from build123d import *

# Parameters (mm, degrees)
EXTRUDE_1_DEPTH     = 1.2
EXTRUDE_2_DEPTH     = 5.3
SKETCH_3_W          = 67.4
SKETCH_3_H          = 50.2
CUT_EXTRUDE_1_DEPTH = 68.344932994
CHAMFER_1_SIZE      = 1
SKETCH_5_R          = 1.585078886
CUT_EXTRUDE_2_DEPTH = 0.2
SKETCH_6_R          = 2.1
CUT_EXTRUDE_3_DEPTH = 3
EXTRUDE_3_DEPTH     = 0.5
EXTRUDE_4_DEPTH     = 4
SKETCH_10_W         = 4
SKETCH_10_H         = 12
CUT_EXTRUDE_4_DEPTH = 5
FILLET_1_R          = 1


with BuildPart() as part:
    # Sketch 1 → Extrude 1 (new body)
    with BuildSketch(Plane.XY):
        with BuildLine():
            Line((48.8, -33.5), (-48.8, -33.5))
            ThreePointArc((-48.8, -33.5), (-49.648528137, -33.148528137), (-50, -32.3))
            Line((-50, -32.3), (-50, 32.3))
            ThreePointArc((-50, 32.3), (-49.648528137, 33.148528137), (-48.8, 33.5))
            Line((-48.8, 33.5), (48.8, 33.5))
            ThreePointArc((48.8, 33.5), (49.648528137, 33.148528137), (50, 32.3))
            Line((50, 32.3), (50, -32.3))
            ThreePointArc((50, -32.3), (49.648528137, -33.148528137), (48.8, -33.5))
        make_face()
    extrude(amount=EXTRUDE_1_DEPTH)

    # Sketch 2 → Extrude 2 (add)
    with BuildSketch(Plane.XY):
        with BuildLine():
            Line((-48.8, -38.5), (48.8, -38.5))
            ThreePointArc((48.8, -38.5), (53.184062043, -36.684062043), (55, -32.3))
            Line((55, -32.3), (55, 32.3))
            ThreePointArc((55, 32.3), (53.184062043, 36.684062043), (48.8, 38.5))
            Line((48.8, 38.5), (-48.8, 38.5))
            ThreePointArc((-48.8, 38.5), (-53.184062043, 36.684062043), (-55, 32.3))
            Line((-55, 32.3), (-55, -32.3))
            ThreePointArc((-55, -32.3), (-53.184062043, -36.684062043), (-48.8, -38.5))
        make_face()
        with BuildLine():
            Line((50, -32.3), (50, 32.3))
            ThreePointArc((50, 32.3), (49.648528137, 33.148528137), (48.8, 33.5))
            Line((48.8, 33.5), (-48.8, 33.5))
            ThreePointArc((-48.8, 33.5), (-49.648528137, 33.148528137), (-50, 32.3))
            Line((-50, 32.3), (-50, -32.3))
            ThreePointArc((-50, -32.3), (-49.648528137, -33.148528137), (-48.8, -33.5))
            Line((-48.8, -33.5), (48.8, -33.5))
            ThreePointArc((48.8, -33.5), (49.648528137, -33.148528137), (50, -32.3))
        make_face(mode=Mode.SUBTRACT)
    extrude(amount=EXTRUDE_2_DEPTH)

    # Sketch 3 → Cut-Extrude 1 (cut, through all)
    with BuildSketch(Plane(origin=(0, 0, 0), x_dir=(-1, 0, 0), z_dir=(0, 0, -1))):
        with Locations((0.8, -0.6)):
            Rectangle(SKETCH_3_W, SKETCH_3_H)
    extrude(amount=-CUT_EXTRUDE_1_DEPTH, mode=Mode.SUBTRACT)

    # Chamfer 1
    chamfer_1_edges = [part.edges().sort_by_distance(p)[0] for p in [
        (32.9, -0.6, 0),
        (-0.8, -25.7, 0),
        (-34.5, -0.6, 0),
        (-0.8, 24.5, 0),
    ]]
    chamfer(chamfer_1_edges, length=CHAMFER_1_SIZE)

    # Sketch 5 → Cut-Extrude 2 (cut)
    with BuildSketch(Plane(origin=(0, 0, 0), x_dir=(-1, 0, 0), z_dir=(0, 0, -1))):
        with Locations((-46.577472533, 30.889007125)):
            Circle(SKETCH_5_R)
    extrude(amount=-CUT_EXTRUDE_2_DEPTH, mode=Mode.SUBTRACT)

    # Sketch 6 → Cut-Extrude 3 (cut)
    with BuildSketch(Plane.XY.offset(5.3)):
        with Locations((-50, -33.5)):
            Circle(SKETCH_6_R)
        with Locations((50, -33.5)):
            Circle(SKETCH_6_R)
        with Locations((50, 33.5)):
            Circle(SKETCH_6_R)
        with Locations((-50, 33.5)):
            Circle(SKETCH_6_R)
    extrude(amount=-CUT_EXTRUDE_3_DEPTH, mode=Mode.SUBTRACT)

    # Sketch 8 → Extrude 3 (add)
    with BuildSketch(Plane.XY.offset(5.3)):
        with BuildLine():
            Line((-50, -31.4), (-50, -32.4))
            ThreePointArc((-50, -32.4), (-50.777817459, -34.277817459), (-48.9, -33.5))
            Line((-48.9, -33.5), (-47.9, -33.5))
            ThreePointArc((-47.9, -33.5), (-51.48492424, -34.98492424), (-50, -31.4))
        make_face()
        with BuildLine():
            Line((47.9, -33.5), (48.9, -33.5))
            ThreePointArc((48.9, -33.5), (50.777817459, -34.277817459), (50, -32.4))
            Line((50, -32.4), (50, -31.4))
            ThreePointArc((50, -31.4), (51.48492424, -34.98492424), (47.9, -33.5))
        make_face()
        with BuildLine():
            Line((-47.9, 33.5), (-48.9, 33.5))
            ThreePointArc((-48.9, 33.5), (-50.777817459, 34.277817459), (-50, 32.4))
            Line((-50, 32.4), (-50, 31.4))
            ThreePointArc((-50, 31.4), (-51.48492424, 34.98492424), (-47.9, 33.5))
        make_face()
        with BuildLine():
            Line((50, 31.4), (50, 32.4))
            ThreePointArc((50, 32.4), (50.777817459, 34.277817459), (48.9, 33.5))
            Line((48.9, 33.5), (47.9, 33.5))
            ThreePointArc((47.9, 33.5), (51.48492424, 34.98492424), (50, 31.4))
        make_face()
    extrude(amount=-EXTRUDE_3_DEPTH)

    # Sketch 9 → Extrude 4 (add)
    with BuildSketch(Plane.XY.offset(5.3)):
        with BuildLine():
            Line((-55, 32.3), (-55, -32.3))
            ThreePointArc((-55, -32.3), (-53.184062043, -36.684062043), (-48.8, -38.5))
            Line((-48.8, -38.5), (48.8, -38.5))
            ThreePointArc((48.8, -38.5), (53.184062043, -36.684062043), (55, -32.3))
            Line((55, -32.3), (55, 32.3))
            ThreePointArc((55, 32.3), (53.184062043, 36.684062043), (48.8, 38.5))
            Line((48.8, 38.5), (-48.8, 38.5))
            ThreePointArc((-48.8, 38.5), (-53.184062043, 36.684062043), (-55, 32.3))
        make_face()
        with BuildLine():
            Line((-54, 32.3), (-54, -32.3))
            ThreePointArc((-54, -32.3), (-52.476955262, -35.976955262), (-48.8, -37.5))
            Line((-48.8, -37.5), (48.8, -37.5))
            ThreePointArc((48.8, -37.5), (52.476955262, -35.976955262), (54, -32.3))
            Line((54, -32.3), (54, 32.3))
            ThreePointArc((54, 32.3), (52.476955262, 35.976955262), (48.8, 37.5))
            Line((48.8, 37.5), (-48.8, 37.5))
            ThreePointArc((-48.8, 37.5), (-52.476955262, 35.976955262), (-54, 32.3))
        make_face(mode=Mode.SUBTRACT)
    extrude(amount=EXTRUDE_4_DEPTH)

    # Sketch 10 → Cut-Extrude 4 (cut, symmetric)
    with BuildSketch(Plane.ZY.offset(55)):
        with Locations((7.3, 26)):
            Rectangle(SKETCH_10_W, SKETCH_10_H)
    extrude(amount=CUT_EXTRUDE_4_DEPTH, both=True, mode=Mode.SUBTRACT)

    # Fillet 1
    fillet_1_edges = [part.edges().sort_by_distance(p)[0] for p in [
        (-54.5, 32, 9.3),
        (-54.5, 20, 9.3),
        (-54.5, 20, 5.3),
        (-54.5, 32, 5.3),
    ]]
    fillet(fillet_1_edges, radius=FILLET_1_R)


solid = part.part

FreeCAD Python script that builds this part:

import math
import FreeCAD as App
import Part
import Sketcher
from FreeCAD import Vector


def edges_at(feature, points):
    """Names of the edges that pass closest to the given points."""
    edges = feature.Shape.Edges
    near = lambda p: min(range(len(edges)), key=lambda i: edges[i].distToShape(Part.Vertex(*p))[0])
    return sorted({f"Edge{near(p) + 1}" for p in points})

doc = App.newDocument("Part")
body = doc.addObject("PartDesign::Body", "Body")

sketch1 = body.newObject("Sketcher::SketchObject", "Sketch")
sketch1.AttachmentSupport = (doc.getObject("XY_Plane"), [""])
sketch1.MapMode = "FlatFace"
sketch1.addGeometry([
    Part.LineSegment(Vector(-48.8, -33.5, 0), Vector(48.8, -33.5, 0)),
    Part.ArcOfCircle(Part.Circle(Vector(48.8, -32.3, 0), Vector(0, 0, 1), 1.2), math.radians(-90), math.radians(0)),
    Part.LineSegment(Vector(50, -32.3, 0), Vector(50, 32.3, 0)),
    Part.ArcOfCircle(Part.Circle(Vector(48.8, 32.3, 0), Vector(0, 0, 1), 1.2), math.radians(0), math.radians(90)),
    Part.LineSegment(Vector(48.8, 33.5, 0), Vector(-48.8, 33.5, 0)),
    Part.ArcOfCircle(Part.Circle(Vector(-48.8, 32.3, 0), Vector(0, 0, 1), 1.2), math.radians(90), math.radians(180)),
    Part.LineSegment(Vector(-50, 32.3, 0), Vector(-50, -32.3, 0)),
    Part.ArcOfCircle(Part.Circle(Vector(-48.8, -32.3, 0), Vector(0, 0, 1), 1.2), math.radians(-180), math.radians(-90)),
], False)
sketch1.addConstraint([
    Sketcher.Constraint("Tangent", 0, 2, 1, 1),
    Sketcher.Constraint("Tangent", 1, 2, 2, 1),
    Sketcher.Constraint("Tangent", 2, 2, 3, 1),
    Sketcher.Constraint("Tangent", 3, 2, 4, 1),
    Sketcher.Constraint("Tangent", 4, 2, 5, 1),
    Sketcher.Constraint("Tangent", 5, 2, 6, 1),
    Sketcher.Constraint("Tangent", 6, 2, 7, 1),
    Sketcher.Constraint("Tangent", 7, 2, 0, 1),
    Sketcher.Constraint("Horizontal", 0),
    Sketcher.Constraint("Vertical", 2),
    Sketcher.Constraint("Horizontal", 4),
    Sketcher.Constraint("Vertical", 6),
    Sketcher.Constraint("Equal", 1, 3),
    Sketcher.Constraint("Equal", 3, 5),
    Sketcher.Constraint("Equal", 5, 7),
    Sketcher.Constraint("Symmetric", 1, 3, 5, 3, -1, 1),
    Sketcher.Constraint("Radius", 1, 1.2),
    Sketcher.Constraint("DistanceX", 0, 1, 0, 2, 97.6),
    Sketcher.Constraint("DistanceY", 2, 1, 2, 2, 64.6),
])
pad1 = body.newObject("PartDesign::Pad", "Pad")
pad1.Profile = sketch1
pad1.Length = 1.2

sketch2 = body.newObject("Sketcher::SketchObject", "Sketch001")
sketch2.AttachmentSupport = (doc.getObject("XY_Plane"), [""])
sketch2.MapMode = "FlatFace"
sketch2.addGeometry([
    Part.LineSegment(Vector(-48.8, -38.5, 0), Vector(48.8, -38.5, 0)),
    Part.ArcOfCircle(Part.Circle(Vector(48.8, -32.3, 0), Vector(0, 0, 1), 6.2), math.radians(-90), math.radians(0)),
    Part.LineSegment(Vector(55, -32.3, 0), Vector(55, 32.3, 0)),
    Part.ArcOfCircle(Part.Circle(Vector(48.8, 32.3, 0), Vector(0, 0, 1), 6.2), math.radians(0), math.radians(90)),
    Part.LineSegment(Vector(48.8, 38.5, 0), Vector(-48.8, 38.5, 0)),
    Part.ArcOfCircle(Part.Circle(Vector(-48.8, 32.3, 0), Vector(0, 0, 1), 6.2), math.radians(90), math.radians(180)),
    Part.LineSegment(Vector(-55, 32.3, 0), Vector(-55, -32.3, 0)),
    Part.ArcOfCircle(Part.Circle(Vector(-48.8, -32.3, 0), Vector(0, 0, 1), 6.2), math.radians(-180), math.radians(-90)),
    Part.LineSegment(Vector(50, 32.3, 0), Vector(50, -32.3, 0)),
    Part.ArcOfCircle(Part.Circle(Vector(48.8, -32.3, 0), Vector(0, 0, 1), 1.2), math.radians(-90), math.radians(0)),
    Part.LineSegment(Vector(48.8, -33.5, 0), Vector(-48.8, -33.5, 0)),
    Part.ArcOfCircle(Part.Circle(Vector(-48.8, -32.3, 0), Vector(0, 0, 1), 1.2), math.radians(-180), math.radians(-90)),
    Part.LineSegment(Vector(-50, -32.3, 0), Vector(-50, 32.3, 0)),
    Part.ArcOfCircle(Part.Circle(Vector(-48.8, 32.3, 0), Vector(0, 0, 1), 1.2), math.radians(90), math.radians(180)),
    Part.LineSegment(Vector(-48.8, 33.5, 0), Vector(48.8, 33.5, 0)),
    Part.ArcOfCircle(Part.Circle(Vector(48.8, 32.3, 0), Vector(0, 0, 1), 1.2), math.radians(0), math.radians(90)),
], False)
sketch2.addConstraint([
    Sketcher.Constraint("Tangent", 0, 2, 1, 1),
    Sketcher.Constraint("Tangent", 1, 2, 2, 1),
    Sketcher.Constraint("Tangent", 2, 2, 3, 1),
    Sketcher.Constraint("Tangent", 3, 2, 4, 1),
    Sketcher.Constraint("Tangent", 4, 2, 5, 1),
    Sketcher.Constraint("Tangent", 5, 2, 6, 1),
    Sketcher.Constraint("Tangent", 6, 2, 7, 1),
    Sketcher.Constraint("Tangent", 7, 2, 0, 1),
    Sketcher.Constraint("Tangent", 8, 2, 9, 2),
    Sketcher.Constraint("Tangent", 9, 1, 10, 1),
    Sketcher.Constraint("Tangent", 10, 2, 11, 2),
    Sketcher.Constraint("Tangent", 11, 1, 12, 1),
    Sketcher.Constraint("Tangent", 12, 2, 13, 2),
    Sketcher.Constraint("Tangent", 13, 1, 14, 1),
    Sketcher.Constraint("Tangent", 14, 2, 15, 2),
    Sketcher.Constraint("Tangent", 15, 1, 8, 1),
    Sketcher.Constraint("Horizontal", 0),
    Sketcher.Constraint("Vertical", 2),
    Sketcher.Constraint("Horizontal", 4),
    Sketcher.Constraint("Vertical", 6),
    Sketcher.Constraint("Vertical", 8),
    Sketcher.Constraint("Horizontal", 10),
    Sketcher.Constraint("Vertical", 12),
    Sketcher.Constraint("Horizontal", 14),
    Sketcher.Constraint("Coincident", 9, 3, 1, 3),
    Sketcher.Constraint("Coincident", 11, 3, 7, 3),
    Sketcher.Constraint("Coincident", 13, 3, 5, 3),
    Sketcher.Constraint("Equal", 1, 3),
    Sketcher.Constraint("Equal", 3, 5),
    Sketcher.Constraint("Equal", 5, 7),
    Sketcher.Constraint("Equal", 13, 15),
    Sketcher.Constraint("Symmetric", 1, 3, 5, 3, -1, 1),
    Sketcher.Constraint("Radius", 1, 6.2),
    Sketcher.Constraint("Radius", 9, 1.2),
    Sketcher.Constraint("DistanceX", 0, 1, 0, 2, 97.6),
    Sketcher.Constraint("DistanceY", 2, 1, 2, 2, 64.6),
])
pad2 = body.newObject("PartDesign::Pad", "Pad001")
pad2.Profile = sketch2
pad2.Length = 5.3

sketch3 = body.newObject("Sketcher::SketchObject", "Sketch002")
sketch3.AttachmentSupport = (doc.getObject("XY_Plane"), [""])
sketch3.MapMode = "FlatFace"
sketch3.addGeometry([
    Part.LineSegment(Vector(32.9, 24.5, 0), Vector(32.9, -25.7, 0)),
    Part.LineSegment(Vector(32.9, -25.7, 0), Vector(-34.5, -25.7, 0)),
    Part.LineSegment(Vector(-34.5, -25.7, 0), Vector(-34.5, 24.5, 0)),
    Part.LineSegment(Vector(-34.5, 24.5, 0), Vector(32.9, 24.5, 0)),
], False)
sketch3.addConstraint([
    Sketcher.Constraint("Coincident", 0, 2, 1, 1),
    Sketcher.Constraint("Coincident", 1, 2, 2, 1),
    Sketcher.Constraint("Coincident", 2, 2, 3, 1),
    Sketcher.Constraint("Coincident", 3, 2, 0, 1),
    Sketcher.Constraint("Vertical", 0),
    Sketcher.Constraint("Horizontal", 1),
    Sketcher.Constraint("Vertical", 2),
    Sketcher.Constraint("Horizontal", 3),
    Sketcher.Constraint("DistanceX", 1, 2, 1, 1, 67.4),
    Sketcher.Constraint("DistanceY", 0, 2, 0, 1, 50.2),
    Sketcher.Constraint("DistanceX", -1, 1, 0, 2, 32.9),
    Sketcher.Constraint("DistanceY", 0, 2, -1, 1, 25.7),
])
pocket1 = body.newObject("PartDesign::Pocket", "Pocket")
pocket1.Profile = sketch3
pocket1.Type = "ThroughAll"
pocket1.Reversed = True
doc.recompute()

chamfer = body.newObject("PartDesign::Chamfer", "Chamfer")
chamfer.Base = (pocket1, edges_at(pocket1, [
    (32.9, -0.6, 0),
    (-0.8, -25.7, 0),
    (-34.5, -0.6, 0),
    (-0.8, 24.5, 0),
]))
chamfer.Size = 1

sketch4 = body.newObject("Sketcher::SketchObject", "Sketch003")
sketch4.AttachmentSupport = (doc.getObject("XY_Plane"), [""])
sketch4.MapMode = "FlatFace"
sketch4.addGeometry(Part.Circle(Vector(46.577473, 30.889007, 0), Vector(0, 0, 1), 1.585079), False)
sketch4.addConstraint([
    Sketcher.Constraint("Diameter", 0, 3.170158),
    Sketcher.Constraint("DistanceX", -1, 1, 0, 3, 46.577473),
    Sketcher.Constraint("DistanceY", -1, 1, 0, 3, 30.889007),
])
pocket2 = body.newObject("PartDesign::Pocket", "Pocket001")
pocket2.Profile = sketch4
pocket2.Length = 0.2
pocket2.Reversed = True

sketch5 = body.newObject("Sketcher::SketchObject", "Sketch004")
sketch5.AttachmentSupport = (doc.getObject("XY_Plane"), [""])
sketch5.MapMode = "FlatFace"
sketch5.AttachmentOffset = App.Placement(Vector(0, 0, 5.3), App.Rotation())
sketch5.addGeometry([
    Part.Circle(Vector(-50, -33.5, 0), Vector(0, 0, 1), 2.1),
    Part.Circle(Vector(50, -33.5, 0), Vector(0, 0, 1), 2.1),
    Part.Circle(Vector(50, 33.5, 0), Vector(0, 0, 1), 2.1),
    Part.Circle(Vector(-50, 33.5, 0), Vector(0, 0, 1), 2.1),
], False)
sketch5.addConstraint([
    Sketcher.Constraint("Equal", 0, 1),
    Sketcher.Constraint("Equal", 1, 2),
    Sketcher.Constraint("Equal", 2, 3),
    Sketcher.Constraint("Symmetric", 0, 3, 2, 3, -1, 1),
    Sketcher.Constraint("Symmetric", 1, 3, 3, 3, -1, 1),
    Sketcher.Constraint("Symmetric", 0, 3, 1, 3, -2),
    Sketcher.Constraint("Diameter", 0, 4.2),
    Sketcher.Constraint("DistanceX", 0, 3, -1, 1, 50.0),
    Sketcher.Constraint("DistanceY", 1, 3, 2, 3, 67.0),
])
pocket3 = body.newObject("PartDesign::Pocket", "Pocket002")
pocket3.Profile = sketch5
pocket3.Length = 3

sketch6 = body.newObject("Sketcher::SketchObject", "Sketch005")
sketch6.AttachmentSupport = (doc.getObject("XY_Plane"), [""])
sketch6.MapMode = "FlatFace"
sketch6.AttachmentOffset = App.Placement(Vector(0, 0, 5.3), App.Rotation())
sketch6.addGeometry([
    Part.LineSegment(Vector(-50, -32.4, 0), Vector(-50, -31.4, 0)),
    Part.ArcOfCircle(Part.Circle(Vector(-50, -33.5, 0), Vector(0, 0, 1), 2.1), math.radians(90), math.radians(360)),
    Part.LineSegment(Vector(-47.9, -33.5, 0), Vector(-48.9, -33.5, 0)),
    Part.ArcOfCircle(Part.Circle(Vector(-50, -33.5, 0), Vector(0, 0, 1), 1.1), math.radians(90), math.radians(360)),
    Part.LineSegment(Vector(48.9, -33.5, 0), Vector(47.9, -33.5, 0)),
    Part.ArcOfCircle(Part.Circle(Vector(50, -33.5, 0), Vector(0, 0, 1), 2.1), math.radians(180), math.radians(450)),
    Part.LineSegment(Vector(50, -31.4, 0), Vector(50, -32.4, 0)),
    Part.ArcOfCircle(Part.Circle(Vector(50, -33.5, 0), Vector(0, 0, 1), 1.1), math.radians(180), math.radians(450)),
    Part.LineSegment(Vector(-48.9, 33.5, 0), Vector(-47.9, 33.5, 0)),
    Part.ArcOfCircle(Part.Circle(Vector(-50, 33.5, 0), Vector(0, 0, 1), 2.1), math.radians(0), math.radians(270)),
    Part.LineSegment(Vector(-50, 31.4, 0), Vector(-50, 32.4, 0)),
    Part.ArcOfCircle(Part.Circle(Vector(-50, 33.5, 0), Vector(0, 0, 1), 1.1), math.radians(0), math.radians(270)),
    Part.LineSegment(Vector(50, 32.4, 0), Vector(50, 31.4, 0)),
    Part.ArcOfCircle(Part.Circle(Vector(50, 33.5, 0), Vector(0, 0, 1), 2.1), math.radians(-90), math.radians(180)),
    Part.LineSegment(Vector(47.9, 33.5, 0), Vector(48.9, 33.5, 0)),
    Part.ArcOfCircle(Part.Circle(Vector(50, 33.5, 0), Vector(0, 0, 1), 1.1), math.radians(-90), math.radians(180)),
], False)
sketch6.addConstraint([
    Sketcher.Constraint("Coincident", 0, 2, 1, 1),
    Sketcher.Constraint("Coincident", 1, 2, 2, 1),
    Sketcher.Constraint("Coincident", 2, 2, 3, 2),
    Sketcher.Constraint("Coincident", 3, 1, 0, 1),
    Sketcher.Constraint("Coincident", 4, 2, 5, 1),
    Sketcher.Constraint("Coincident", 5, 2, 6, 1),
    Sketcher.Constraint("Coincident", 6, 2, 7, 2),
    Sketcher.Constraint("Coincident", 7, 1, 4, 1),
    Sketcher.Constraint("Coincident", 8, 2, 9, 1),
    Sketcher.Constraint("Coincident", 9, 2, 10, 1),
    Sketcher.Constraint("Coincident", 10, 2, 11, 2),
    Sketcher.Constraint("Coincident", 11, 1, 8, 1),
    Sketcher.Constraint("Coincident", 12, 2, 13, 1),
    Sketcher.Constraint("Coincident", 13, 2, 14, 1),
    Sketcher.Constraint("Coincident", 14, 2, 15, 2),
    Sketcher.Constraint("Coincident", 15, 1, 12, 1),
    Sketcher.Constraint("Vertical", 0),
    Sketcher.Constraint("Horizontal", 2),
    Sketcher.Constraint("Horizontal", 4),
    Sketcher.Constraint("Vertical", 6),
    Sketcher.Constraint("Horizontal", 8),
    Sketcher.Constraint("Vertical", 10),
    Sketcher.Constraint("Vertical", 12),
    Sketcher.Constraint("Horizontal", 14),
    Sketcher.Constraint("Coincident", 3, 3, 1, 3),
    Sketcher.Constraint("Coincident", 7, 3, 5, 3),
    Sketcher.Constraint("Coincident", 11, 3, 9, 3),
    Sketcher.Constraint("Coincident", 15, 3, 13, 3),
    Sketcher.Constraint("Equal", 1, 5),
    Sketcher.Constraint("Equal", 3, 7),
    Sketcher.Constraint("Equal", 5, 9),
    Sketcher.Constraint("Equal", 7, 11),
    Sketcher.Constraint("Equal", 9, 13),
    Sketcher.Constraint("Equal", 11, 15),
    Sketcher.Constraint("Symmetric", 5, 3, 9, 3, -1, 1),
    Sketcher.Constraint("Symmetric", 1, 3, 13, 3, -1, 1),
    Sketcher.Constraint("Symmetric", 1, 3, 5, 3, -2),
    Sketcher.Constraint("Horizontal", 7, 3, 1, 2),
    Sketcher.Constraint("Horizontal", 2, 2, 4, 2),
    Sketcher.Constraint("Horizontal", 15, 3, 8, 2),
    Sketcher.Constraint("Horizontal", 11, 1, 13, 2),
    Sketcher.Constraint("Vertical", 11, 3, 0, 2),
    Sketcher.Constraint("Vertical", 15, 3, 5, 2),
    Sketcher.Constraint("Vertical", 3, 1, 9, 2),
    Sketcher.Constraint("Vertical", 6, 2, 12, 2),
    Sketcher.Constraint("Radius", 1, 2.1),
    Sketcher.Constraint("Radius", 3, 1.1),
    Sketcher.Constraint("DistanceX", 1, 3, -1, 1, 50.0),
    Sketcher.Constraint("DistanceY", 1, 3, 9, 3, 67.0),
])
pad3 = body.newObject("PartDesign::Pad", "Pad002")
pad3.Profile = sketch6
pad3.Length = 0.5
pad3.Reversed = True

sketch7 = body.newObject("Sketcher::SketchObject", "Sketch006")
sketch7.AttachmentSupport = (doc.getObject("XY_Plane"), [""])
sketch7.MapMode = "FlatFace"
sketch7.AttachmentOffset = App.Placement(Vector(0, 0, 5.3), App.Rotation())
sketch7.addGeometry([
    Part.LineSegment(Vector(-55, 32.3, 0), Vector(-55, -32.3, 0)),
    Part.ArcOfCircle(Part.Circle(Vector(-48.8, -32.3, 0), Vector(0, 0, 1), 6.2), math.radians(-180), math.radians(-90)),
    Part.LineSegment(Vector(-48.8, -38.5, 0), Vector(48.8, -38.5, 0)),
    Part.ArcOfCircle(Part.Circle(Vector(48.8, -32.3, 0), Vector(0, 0, 1), 6.2), math.radians(-90), math.radians(0)),
    Part.LineSegment(Vector(55, -32.3, 0), Vector(55, 32.3, 0)),
    Part.ArcOfCircle(Part.Circle(Vector(48.8, 32.3, 0), Vector(0, 0, 1), 6.2), math.radians(0), math.radians(90)),
    Part.LineSegment(Vector(48.8, 38.5, 0), Vector(-48.8, 38.5, 0)),
    Part.ArcOfCircle(Part.Circle(Vector(-48.8, 32.3, 0), Vector(0, 0, 1), 6.2), math.radians(90), math.radians(180)),
    Part.LineSegment(Vector(-54, -32.3, 0), Vector(-54, 32.3, 0)),
    Part.ArcOfCircle(Part.Circle(Vector(-48.8, 32.3, 0), Vector(0, 0, 1), 5.2), math.radians(90), math.radians(180)),
    Part.LineSegment(Vector(-48.8, 37.5, 0), Vector(48.8, 37.5, 0)),
    Part.ArcOfCircle(Part.Circle(Vector(48.8, 32.3, 0), Vector(0, 0, 1), 5.2), math.radians(0), math.radians(90)),
    Part.LineSegment(Vector(54, 32.3, 0), Vector(54, -32.3, 0)),
    Part.ArcOfCircle(Part.Circle(Vector(48.8, -32.3, 0), Vector(0, 0, 1), 5.2), math.radians(-90), math.radians(0)),
    Part.LineSegment(Vector(48.8, -37.5, 0), Vector(-48.8, -37.5, 0)),
    Part.ArcOfCircle(Part.Circle(Vector(-48.8, -32.3, 0), Vector(0, 0, 1), 5.2), math.radians(-180), math.radians(-90)),
], False)
sketch7.addConstraint([
    Sketcher.Constraint("Tangent", 0, 2, 1, 1),
    Sketcher.Constraint("Tangent", 1, 2, 2, 1),
    Sketcher.Constraint("Tangent", 2, 2, 3, 1),
    Sketcher.Constraint("Tangent", 3, 2, 4, 1),
    Sketcher.Constraint("Tangent", 4, 2, 5, 1),
    Sketcher.Constraint("Tangent", 5, 2, 6, 1),
    Sketcher.Constraint("Tangent", 6, 2, 7, 1),
    Sketcher.Constraint("Tangent", 7, 2, 0, 1),
    Sketcher.Constraint("Tangent", 8, 2, 9, 2),
    Sketcher.Constraint("Tangent", 9, 1, 10, 1),
    Sketcher.Constraint("Tangent", 10, 2, 11, 2),
    Sketcher.Constraint("Tangent", 11, 1, 12, 1),
    Sketcher.Constraint("Tangent", 12, 2, 13, 2),
    Sketcher.Constraint("Tangent", 13, 1, 14, 1),
    Sketcher.Constraint("Tangent", 14, 2, 15, 2),
    Sketcher.Constraint("Tangent", 15, 1, 8, 1),
    Sketcher.Constraint("Vertical", 0),
    Sketcher.Constraint("Horizontal", 2),
    Sketcher.Constraint("Vertical", 4),
    Sketcher.Constraint("Horizontal", 6),
    Sketcher.Constraint("Vertical", 8),
    Sketcher.Constraint("Horizontal", 10),
    Sketcher.Constraint("Vertical", 12),
    Sketcher.Constraint("Horizontal", 14),
    Sketcher.Constraint("Coincident", 9, 3, 7, 3),
    Sketcher.Constraint("Coincident", 11, 3, 5, 3),
    Sketcher.Constraint("Coincident", 13, 3, 3, 3),
    Sketcher.Constraint("Equal", 1, 3),
    Sketcher.Constraint("Equal", 3, 5),
    Sketcher.Constraint("Equal", 5, 7),
    Sketcher.Constraint("Equal", 13, 15),
    Sketcher.Constraint("Symmetric", 1, 3, 5, 3, -1, 1),
    Sketcher.Constraint("Radius", 1, 6.2),
    Sketcher.Constraint("Radius", 9, 5.2),
    Sketcher.Constraint("DistanceX", 2, 1, 2, 2, 97.6),
    Sketcher.Constraint("DistanceY", 0, 2, 0, 1, 64.6),
])
pad4 = body.newObject("PartDesign::Pad", "Pad003")
pad4.Profile = sketch7
pad4.Length = 4

sketch8 = body.newObject("Sketcher::SketchObject", "Sketch007")
sketch8.AttachmentSupport = (doc.getObject("YZ_Plane"), [""])
sketch8.MapMode = "FlatFace"
sketch8.AttachmentOffset = App.Placement(Vector(0, 0, -55), App.Rotation())
sketch8.addGeometry([
    Part.LineSegment(Vector(32, 5.3, 0), Vector(20, 5.3, 0)),
    Part.LineSegment(Vector(20, 5.3, 0), Vector(20, 9.3, 0)),
    Part.LineSegment(Vector(20, 9.3, 0), Vector(32, 9.3, 0)),
    Part.LineSegment(Vector(32, 9.3, 0), Vector(32, 5.3, 0)),
], False)
sketch8.addConstraint([
    Sketcher.Constraint("Coincident", 0, 2, 1, 1),
    Sketcher.Constraint("Coincident", 1, 2, 2, 1),
    Sketcher.Constraint("Coincident", 2, 2, 3, 1),
    Sketcher.Constraint("Coincident", 3, 2, 0, 1),
    Sketcher.Constraint("Horizontal", 0),
    Sketcher.Constraint("Vertical", 1),
    Sketcher.Constraint("Horizontal", 2),
    Sketcher.Constraint("Vertical", 3),
    Sketcher.Constraint("DistanceX", 0, 2, 0, 1, 12.0),
    Sketcher.Constraint("DistanceY", 1, 1, 1, 2, 4.0),
    Sketcher.Constraint("DistanceX", -1, 1, 0, 2, 20.0),
    Sketcher.Constraint("DistanceY", -1, 1, 0, 2, 5.3),
])
pocket4 = body.newObject("PartDesign::Pocket", "Pocket003")
pocket4.Profile = sketch8
pocket4.Length = 10
pocket4.Midplane = True
doc.recompute()

fillet = body.newObject("PartDesign::Fillet", "Fillet")
fillet.Base = (pocket4, edges_at(pocket4, [
    (-54.5, 32, 9.3),
    (-54.5, 20, 9.3),
    (-54.5, 20, 5.3),
    (-54.5, 32, 5.3),
]))
fillet.Radius = 1

doc.recompute()
